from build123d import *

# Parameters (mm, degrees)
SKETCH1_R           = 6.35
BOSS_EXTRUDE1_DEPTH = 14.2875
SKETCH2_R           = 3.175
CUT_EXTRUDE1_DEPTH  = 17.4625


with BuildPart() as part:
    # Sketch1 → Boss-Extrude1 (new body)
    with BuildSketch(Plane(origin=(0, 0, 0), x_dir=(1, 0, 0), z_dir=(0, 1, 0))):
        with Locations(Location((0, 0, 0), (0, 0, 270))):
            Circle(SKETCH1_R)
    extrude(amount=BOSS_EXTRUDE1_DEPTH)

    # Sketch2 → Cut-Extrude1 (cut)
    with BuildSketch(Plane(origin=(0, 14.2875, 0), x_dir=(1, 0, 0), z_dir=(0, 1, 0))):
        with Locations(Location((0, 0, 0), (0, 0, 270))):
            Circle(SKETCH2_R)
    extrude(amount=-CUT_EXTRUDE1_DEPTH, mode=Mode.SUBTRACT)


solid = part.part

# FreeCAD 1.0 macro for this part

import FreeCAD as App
import Part
import Sketcher
Q = App.Units.Quantity

doc = App.newDocument("Part")
body = doc.addObject("PartDesign::Body", "Body")

# Sketch on XZ plane
sketch1 = body.newObject("Sketcher::SketchObject", "Sketch")
sketch1.AttachmentSupport = (doc.getObject("XZ_Plane"), [""])
sketch1.MapMode = "FlatFace"
sketch1.addGeometry(Part.Circle(App.Vector(0, 0, 0), App.Vector(0, 0, 1), 6), False)
sketch1.addConstraint([
    Sketcher.Constraint("Coincident", 0, 3, -1, 1),
    Sketcher.Constraint("Diameter", 0, Q("0.5 in")),
])
pad1 = body.newObject("PartDesign::Pad", "Pad")
pad1.Profile = sketch1
pad1.Length = Q("0.5625 in")
pad1.Reversed = True

# Sketch on XZ plane
sketch2 = body.newObject("Sketcher::SketchObject", "Sketch001")
sketch2.AttachmentSupport = (doc.getObject("XZ_Plane"), [""])
sketch2.MapMode = "FlatFace"
sketch2.AttachmentOffset = App.Placement(App.Vector(0, 0, -0.5625 * 25.4), App.Rotation())
sketch2.addGeometry(Part.Circle(App.Vector(0, 0, 0), App.Vector(0, 0, 1), 3.2), False)
sketch2.addConstraint([
    Sketcher.Constraint("Coincident", 0, 3, -1, 1),
    Sketcher.Constraint("Diameter", 0, Q("0.25 in")),
])
pocket1 = body.newObject("PartDesign::Pocket", "Pocket")
pocket1.Profile = sketch2
pocket1.Length = Q("0.6875 in")
pocket1.Reversed = True

doc.recompute()
